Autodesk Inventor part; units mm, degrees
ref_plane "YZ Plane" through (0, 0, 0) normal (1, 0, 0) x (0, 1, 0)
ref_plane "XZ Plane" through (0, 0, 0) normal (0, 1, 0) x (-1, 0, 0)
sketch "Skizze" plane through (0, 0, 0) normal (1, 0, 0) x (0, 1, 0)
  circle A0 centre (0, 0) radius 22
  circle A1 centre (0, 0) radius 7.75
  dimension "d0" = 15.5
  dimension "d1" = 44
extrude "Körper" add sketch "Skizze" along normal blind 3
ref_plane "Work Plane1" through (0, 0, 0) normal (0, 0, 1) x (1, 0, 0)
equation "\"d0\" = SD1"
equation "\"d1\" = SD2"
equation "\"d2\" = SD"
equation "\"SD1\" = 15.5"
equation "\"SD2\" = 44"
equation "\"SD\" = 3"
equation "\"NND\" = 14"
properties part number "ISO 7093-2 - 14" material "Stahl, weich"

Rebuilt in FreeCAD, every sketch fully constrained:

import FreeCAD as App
import Part
import Sketcher

V = App.Vector
Q = App.Units.Quantity

doc = App.newDocument("Part")
params = doc.addObject("Spreadsheet::Sheet", "Params")
for row, (alias, value) in enumerate([
    ("sketch1_diameter", "44 mm"),
    ("sketch1_diameter2", "15.5 mm"),
    ("pad1_length", "3 mm"),
], start=1):
    params.set(f"A{row}", alias)
    params.set(f"B{row}", "=" + value)
    params.setAlias(f"B{row}", alias)

body = doc.addObject("PartDesign::Body", "Body")

# Sketch on YZ plane
sketch1 = body.newObject("Sketcher::SketchObject", "Sketch")
sketch1.AttachmentSupport = (doc.getObject("YZ_Plane"), [""])
sketch1.MapMode = "FlatFace"
sketch1.addGeometry([
    Part.Circle(V(0, 0, 0), V(0, 0, 1), 22),
    Part.Circle(V(0, 0, 0), V(0, 0, 1), 8),
], False)
sketch1.addConstraint([
    Sketcher.Constraint("Coincident", 0, 3, -1, 1),
    Sketcher.Constraint("Coincident", 1, 3, -1, 1),
    Sketcher.Constraint("Diameter", 0, Q("44 mm")),
    Sketcher.Constraint("Diameter", 1, Q("15.5 mm")),
])
sketch1.setExpression("Constraints[2]", "Params.sketch1_diameter")
sketch1.setExpression("Constraints[3]", "Params.sketch1_diameter2")
pad1 = body.newObject("PartDesign::Pad", "Pad")
pad1.Profile = sketch1
pad1.setExpression("Length", "Params.pad1_length")

doc.recompute()
